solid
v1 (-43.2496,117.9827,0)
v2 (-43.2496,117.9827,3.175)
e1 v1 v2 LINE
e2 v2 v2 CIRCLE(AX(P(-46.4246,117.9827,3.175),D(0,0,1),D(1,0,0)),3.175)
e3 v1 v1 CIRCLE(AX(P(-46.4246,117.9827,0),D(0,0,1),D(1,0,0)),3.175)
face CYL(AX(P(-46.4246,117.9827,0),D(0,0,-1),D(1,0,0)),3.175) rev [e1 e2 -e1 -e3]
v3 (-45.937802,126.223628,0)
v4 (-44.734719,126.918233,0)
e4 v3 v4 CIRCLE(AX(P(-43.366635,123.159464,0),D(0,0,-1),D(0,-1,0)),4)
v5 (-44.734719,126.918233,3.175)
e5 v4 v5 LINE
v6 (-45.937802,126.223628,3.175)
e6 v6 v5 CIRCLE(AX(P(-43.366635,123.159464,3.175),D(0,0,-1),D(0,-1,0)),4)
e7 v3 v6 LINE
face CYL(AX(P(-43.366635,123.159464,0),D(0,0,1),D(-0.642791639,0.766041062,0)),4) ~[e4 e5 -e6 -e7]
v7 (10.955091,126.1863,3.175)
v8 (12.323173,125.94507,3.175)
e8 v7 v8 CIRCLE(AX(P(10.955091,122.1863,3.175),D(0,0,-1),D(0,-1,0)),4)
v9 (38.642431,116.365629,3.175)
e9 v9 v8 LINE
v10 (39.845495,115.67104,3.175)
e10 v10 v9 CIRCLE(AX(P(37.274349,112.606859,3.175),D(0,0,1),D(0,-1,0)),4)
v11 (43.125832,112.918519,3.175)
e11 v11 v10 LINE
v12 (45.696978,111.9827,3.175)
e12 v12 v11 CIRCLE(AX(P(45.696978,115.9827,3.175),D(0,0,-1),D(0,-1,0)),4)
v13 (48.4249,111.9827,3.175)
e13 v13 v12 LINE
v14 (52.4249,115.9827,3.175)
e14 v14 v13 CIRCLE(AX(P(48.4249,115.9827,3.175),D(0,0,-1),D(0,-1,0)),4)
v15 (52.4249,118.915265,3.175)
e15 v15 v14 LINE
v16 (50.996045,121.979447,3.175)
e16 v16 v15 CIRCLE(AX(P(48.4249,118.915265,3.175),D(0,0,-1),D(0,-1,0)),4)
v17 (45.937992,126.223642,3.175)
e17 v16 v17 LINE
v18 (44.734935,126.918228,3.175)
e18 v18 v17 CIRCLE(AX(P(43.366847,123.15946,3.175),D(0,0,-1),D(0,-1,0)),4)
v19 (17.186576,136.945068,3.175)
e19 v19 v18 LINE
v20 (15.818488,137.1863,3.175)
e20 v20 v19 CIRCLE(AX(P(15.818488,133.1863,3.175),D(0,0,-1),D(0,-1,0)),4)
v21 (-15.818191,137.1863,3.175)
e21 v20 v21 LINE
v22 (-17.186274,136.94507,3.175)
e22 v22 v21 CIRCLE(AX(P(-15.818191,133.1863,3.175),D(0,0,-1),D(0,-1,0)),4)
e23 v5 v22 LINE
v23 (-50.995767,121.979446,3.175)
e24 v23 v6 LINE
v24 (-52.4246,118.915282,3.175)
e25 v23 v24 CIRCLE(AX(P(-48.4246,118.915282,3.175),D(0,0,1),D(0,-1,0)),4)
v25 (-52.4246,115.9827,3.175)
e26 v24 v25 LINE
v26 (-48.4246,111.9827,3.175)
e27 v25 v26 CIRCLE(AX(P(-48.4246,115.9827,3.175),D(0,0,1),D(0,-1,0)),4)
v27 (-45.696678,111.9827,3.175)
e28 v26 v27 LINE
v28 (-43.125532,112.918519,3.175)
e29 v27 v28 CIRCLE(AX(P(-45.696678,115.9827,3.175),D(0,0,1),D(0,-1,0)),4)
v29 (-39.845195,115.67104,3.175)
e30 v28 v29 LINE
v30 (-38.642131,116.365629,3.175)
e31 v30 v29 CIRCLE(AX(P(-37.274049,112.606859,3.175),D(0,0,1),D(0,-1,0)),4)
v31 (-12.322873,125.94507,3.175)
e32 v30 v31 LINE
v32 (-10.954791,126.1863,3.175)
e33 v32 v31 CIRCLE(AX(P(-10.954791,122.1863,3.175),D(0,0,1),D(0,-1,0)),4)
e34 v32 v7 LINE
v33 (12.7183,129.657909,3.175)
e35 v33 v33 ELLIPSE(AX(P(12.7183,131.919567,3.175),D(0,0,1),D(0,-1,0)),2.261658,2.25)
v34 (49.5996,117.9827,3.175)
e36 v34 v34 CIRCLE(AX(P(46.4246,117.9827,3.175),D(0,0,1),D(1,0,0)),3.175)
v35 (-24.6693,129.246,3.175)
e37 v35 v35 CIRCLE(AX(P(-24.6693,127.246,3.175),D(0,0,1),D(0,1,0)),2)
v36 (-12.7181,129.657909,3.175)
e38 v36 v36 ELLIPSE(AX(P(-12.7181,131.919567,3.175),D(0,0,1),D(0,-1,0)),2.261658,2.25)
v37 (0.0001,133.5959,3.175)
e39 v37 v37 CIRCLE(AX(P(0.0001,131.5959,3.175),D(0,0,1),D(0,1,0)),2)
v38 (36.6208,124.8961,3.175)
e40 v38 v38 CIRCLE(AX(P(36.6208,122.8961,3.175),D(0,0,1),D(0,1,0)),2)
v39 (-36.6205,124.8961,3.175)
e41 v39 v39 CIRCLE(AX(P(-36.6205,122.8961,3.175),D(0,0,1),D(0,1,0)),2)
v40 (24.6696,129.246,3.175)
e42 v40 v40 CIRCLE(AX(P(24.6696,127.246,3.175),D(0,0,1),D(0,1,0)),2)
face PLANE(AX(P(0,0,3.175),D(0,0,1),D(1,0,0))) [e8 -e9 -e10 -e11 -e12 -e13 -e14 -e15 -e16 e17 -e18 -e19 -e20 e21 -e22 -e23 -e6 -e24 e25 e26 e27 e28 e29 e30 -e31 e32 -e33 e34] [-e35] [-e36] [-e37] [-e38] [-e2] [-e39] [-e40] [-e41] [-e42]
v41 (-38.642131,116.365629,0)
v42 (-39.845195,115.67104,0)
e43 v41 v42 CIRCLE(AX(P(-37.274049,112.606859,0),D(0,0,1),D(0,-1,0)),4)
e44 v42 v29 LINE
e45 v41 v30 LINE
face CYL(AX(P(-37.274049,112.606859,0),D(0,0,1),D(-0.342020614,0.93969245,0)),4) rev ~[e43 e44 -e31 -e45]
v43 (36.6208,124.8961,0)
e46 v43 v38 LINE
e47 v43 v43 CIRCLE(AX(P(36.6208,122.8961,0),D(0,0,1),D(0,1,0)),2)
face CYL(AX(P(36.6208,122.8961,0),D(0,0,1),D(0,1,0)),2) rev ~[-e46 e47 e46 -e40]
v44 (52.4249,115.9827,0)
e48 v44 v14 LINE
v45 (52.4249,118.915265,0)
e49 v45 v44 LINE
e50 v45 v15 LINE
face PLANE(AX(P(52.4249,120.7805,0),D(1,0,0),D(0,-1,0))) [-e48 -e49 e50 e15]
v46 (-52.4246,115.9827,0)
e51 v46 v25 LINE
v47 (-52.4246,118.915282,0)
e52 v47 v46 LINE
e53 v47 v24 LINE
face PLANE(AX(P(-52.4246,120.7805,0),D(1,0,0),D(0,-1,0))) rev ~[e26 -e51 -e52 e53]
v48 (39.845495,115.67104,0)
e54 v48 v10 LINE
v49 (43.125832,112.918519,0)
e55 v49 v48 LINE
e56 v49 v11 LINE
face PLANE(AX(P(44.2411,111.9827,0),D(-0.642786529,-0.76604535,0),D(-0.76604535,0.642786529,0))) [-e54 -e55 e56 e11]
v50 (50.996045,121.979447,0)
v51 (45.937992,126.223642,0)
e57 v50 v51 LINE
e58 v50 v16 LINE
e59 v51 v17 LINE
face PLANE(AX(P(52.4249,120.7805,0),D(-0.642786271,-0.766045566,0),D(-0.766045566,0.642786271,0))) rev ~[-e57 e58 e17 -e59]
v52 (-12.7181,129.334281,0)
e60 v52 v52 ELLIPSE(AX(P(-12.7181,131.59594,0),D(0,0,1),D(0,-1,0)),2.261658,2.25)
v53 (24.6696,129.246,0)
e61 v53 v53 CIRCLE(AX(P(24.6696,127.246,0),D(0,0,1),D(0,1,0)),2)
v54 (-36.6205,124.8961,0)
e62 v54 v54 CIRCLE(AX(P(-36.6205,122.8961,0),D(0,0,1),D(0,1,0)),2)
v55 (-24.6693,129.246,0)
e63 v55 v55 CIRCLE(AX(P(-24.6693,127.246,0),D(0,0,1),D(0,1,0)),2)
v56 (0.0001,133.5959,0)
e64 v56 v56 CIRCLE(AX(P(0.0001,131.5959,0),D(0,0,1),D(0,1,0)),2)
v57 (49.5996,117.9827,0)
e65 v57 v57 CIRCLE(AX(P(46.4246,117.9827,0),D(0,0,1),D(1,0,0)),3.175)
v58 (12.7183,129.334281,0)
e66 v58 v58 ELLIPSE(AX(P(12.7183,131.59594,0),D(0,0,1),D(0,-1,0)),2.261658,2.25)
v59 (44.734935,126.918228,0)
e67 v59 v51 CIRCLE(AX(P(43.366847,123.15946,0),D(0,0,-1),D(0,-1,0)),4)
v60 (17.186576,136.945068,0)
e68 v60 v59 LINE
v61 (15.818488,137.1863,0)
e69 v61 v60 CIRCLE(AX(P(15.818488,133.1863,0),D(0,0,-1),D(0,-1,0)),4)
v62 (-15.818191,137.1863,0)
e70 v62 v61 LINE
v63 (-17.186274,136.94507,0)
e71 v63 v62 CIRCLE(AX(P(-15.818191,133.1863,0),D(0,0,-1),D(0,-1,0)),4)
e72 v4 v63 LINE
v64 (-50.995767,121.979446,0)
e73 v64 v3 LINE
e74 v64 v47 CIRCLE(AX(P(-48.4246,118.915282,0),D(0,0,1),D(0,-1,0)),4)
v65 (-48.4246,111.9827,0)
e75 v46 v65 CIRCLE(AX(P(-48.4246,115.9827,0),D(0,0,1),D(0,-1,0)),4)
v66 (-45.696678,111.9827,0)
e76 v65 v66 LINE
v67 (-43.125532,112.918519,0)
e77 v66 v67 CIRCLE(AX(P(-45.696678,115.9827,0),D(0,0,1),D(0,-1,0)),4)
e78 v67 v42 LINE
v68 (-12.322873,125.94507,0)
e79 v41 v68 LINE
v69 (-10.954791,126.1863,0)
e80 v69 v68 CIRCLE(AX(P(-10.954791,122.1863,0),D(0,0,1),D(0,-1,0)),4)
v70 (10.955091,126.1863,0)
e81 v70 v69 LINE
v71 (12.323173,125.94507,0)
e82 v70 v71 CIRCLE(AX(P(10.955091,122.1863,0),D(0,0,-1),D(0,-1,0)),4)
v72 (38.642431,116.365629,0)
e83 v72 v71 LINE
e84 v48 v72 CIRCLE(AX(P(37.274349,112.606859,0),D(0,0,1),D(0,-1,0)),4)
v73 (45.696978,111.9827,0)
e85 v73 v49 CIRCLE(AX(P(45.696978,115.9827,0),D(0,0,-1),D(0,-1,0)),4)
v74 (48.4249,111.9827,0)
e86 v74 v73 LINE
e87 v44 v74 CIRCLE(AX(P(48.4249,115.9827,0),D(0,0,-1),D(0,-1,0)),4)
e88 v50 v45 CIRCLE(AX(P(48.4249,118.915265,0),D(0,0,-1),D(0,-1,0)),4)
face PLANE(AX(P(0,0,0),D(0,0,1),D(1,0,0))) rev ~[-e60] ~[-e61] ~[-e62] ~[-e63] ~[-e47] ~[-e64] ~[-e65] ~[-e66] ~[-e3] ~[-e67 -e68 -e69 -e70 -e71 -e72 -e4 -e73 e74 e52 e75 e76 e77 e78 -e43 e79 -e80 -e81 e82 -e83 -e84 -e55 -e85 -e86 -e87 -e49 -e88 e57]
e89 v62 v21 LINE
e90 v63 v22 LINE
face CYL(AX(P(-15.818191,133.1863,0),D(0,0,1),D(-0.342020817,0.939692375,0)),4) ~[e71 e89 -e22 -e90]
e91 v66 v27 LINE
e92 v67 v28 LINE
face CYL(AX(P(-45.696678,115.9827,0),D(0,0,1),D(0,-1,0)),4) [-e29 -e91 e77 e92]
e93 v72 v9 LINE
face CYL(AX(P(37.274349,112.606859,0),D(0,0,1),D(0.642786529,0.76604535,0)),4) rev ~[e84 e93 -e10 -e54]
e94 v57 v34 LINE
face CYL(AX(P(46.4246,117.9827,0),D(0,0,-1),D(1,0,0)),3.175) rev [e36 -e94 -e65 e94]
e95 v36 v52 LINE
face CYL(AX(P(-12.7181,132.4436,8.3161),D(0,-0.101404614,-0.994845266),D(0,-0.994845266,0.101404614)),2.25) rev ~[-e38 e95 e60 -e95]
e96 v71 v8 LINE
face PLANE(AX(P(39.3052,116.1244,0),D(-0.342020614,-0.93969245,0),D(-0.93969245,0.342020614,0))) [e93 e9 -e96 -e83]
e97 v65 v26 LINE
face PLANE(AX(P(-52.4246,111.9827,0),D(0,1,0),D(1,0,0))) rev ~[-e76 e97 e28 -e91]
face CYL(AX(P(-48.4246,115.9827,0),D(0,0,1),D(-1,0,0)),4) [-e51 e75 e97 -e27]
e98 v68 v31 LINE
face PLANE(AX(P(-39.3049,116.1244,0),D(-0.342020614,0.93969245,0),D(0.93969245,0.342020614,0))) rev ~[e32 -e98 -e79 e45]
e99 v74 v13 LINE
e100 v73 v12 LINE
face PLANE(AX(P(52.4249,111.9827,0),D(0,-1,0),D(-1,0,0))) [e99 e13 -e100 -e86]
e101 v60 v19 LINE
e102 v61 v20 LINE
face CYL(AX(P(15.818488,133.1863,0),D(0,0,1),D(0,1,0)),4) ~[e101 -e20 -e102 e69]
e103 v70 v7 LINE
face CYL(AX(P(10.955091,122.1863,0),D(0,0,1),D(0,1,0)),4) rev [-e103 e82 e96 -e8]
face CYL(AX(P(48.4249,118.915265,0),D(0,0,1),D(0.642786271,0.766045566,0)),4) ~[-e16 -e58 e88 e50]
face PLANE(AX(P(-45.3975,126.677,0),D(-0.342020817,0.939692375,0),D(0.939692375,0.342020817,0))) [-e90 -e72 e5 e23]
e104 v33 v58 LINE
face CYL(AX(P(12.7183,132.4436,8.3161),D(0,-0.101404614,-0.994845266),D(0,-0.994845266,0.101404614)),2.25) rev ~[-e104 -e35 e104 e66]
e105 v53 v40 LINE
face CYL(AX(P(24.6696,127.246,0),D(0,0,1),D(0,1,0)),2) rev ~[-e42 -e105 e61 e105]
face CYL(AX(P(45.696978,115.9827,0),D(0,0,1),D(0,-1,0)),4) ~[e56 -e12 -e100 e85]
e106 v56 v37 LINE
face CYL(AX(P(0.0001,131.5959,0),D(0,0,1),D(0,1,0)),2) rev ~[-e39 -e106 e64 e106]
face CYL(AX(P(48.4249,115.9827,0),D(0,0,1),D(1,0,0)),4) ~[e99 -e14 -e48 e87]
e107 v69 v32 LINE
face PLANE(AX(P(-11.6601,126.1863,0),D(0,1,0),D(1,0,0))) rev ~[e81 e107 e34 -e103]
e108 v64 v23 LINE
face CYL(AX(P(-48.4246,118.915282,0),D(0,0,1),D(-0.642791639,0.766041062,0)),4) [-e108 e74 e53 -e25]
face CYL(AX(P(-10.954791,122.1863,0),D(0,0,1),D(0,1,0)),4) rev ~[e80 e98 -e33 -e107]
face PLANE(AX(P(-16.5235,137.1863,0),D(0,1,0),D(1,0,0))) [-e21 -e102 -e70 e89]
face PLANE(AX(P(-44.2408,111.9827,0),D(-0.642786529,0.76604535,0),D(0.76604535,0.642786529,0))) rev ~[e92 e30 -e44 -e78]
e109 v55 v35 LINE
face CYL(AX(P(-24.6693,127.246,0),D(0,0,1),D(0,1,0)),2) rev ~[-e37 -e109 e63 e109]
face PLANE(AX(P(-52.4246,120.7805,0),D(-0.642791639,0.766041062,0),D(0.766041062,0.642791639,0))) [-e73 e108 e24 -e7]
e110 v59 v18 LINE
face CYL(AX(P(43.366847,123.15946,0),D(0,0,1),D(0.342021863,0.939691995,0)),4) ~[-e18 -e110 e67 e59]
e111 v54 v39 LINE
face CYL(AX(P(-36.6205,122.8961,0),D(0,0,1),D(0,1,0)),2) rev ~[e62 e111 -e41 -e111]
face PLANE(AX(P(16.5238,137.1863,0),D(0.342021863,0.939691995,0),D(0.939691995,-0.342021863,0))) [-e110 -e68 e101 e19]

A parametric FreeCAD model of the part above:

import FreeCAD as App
import Part
import Sketcher
from FreeCAD import Vector
Q = App.Units.Quantity


def edges_at(feature, points):
    """Names of the edges that pass closest to the given points."""
    edges = feature.Shape.Edges
    near = lambda p: min(range(len(edges)), key=lambda i: edges[i].distToShape(Part.Vertex(*p))[0])
    return sorted({f"Edge{near(p) + 1}" for p in points})

doc = App.newDocument("Part")
body = doc.addObject("PartDesign::Body", "Body")

# Sketch on XY plane
sketch1 = body.newObject("Sketcher::SketchObject", "Sketch")
sketch1.AttachmentSupport = (doc.getObject("XY_Plane"), [""])
sketch1.MapMode = "FlatFace"
sketch1.addGeometry([
    Part.LineSegment(Vector(-45.4, 126.7, 0), Vector(-52.4, 120.8, 0)),  # 0
    Part.LineSegment(Vector(-52.4, 120.8, 0), Vector(-52.4, 112, 0)),  # 1
    Part.LineSegment(Vector(-52.4, 112, 0), Vector(-44.2, 112, 0)),  # 2
    Part.LineSegment(Vector(-44.2, 112, 0), Vector(-39.3, 116.1, 0)),  # 3
    Part.LineSegment(Vector(-39.3, 116.1, 0), Vector(-11.7, 126.2, 0)),  # 4
    Part.LineSegment(Vector(-11.7, 126.2, 0), Vector(11.7, 126.2, 0)),  # 5
    Part.LineSegment(Vector(11.7, 126.2, 0), Vector(39.3, 116.1, 0)),  # 6
    Part.LineSegment(Vector(39.3, 116.1, 0), Vector(44.2, 112, 0)),  # 7
    Part.LineSegment(Vector(44.2, 112, 0), Vector(52.4, 112, 0)),  # 8
    Part.LineSegment(Vector(52.4, 112, 0), Vector(52.4, 120.8, 0)),  # 9
    Part.LineSegment(Vector(52.4, 120.8, 0), Vector(45.4, 126.7, 0)),  # 10
    Part.LineSegment(Vector(45.4, 126.7, 0), Vector(16.5, 137.2, 0)),  # 11
    Part.LineSegment(Vector(16.5, 137.2, 0), Vector(-16.5, 137.2, 0)),  # 12
    Part.LineSegment(Vector(-16.5, 137.2, 0), Vector(-45.4, 126.7, 0)),  # 13
    Part.Circle(Vector(-46.4, 118, 0), Vector(0, 0, 1), 3.2),  # 14
    Part.Circle(Vector(46.4, 118, 0), Vector(0, 0, 1), 3.2),  # 15
], False)
sketch1.addConstraint([
    Sketcher.Constraint("Coincident", 0, 2, 1, 1),
    Sketcher.Constraint("Coincident", 1, 2, 2, 1),
    Sketcher.Constraint("Coincident", 2, 2, 3, 1),
    Sketcher.Constraint("Coincident", 3, 2, 4, 1),
    Sketcher.Constraint("Coincident", 4, 2, 5, 1),
    Sketcher.Constraint("Coincident", 5, 2, 6, 1),
    Sketcher.Constraint("Coincident", 6, 2, 7, 1),
    Sketcher.Constraint("Coincident", 7, 2, 8, 1),
    Sketcher.Constraint("Coincident", 8, 2, 9, 1),
    Sketcher.Constraint("Coincident", 9, 2, 10, 1),
    Sketcher.Constraint("Coincident", 10, 2, 11, 1),
    Sketcher.Constraint("Coincident", 11, 2, 12, 1),
    Sketcher.Constraint("Coincident", 12, 2, 13, 1),
    Sketcher.Constraint("Coincident", 13, 2, 0, 1),
    Sketcher.Constraint("Vertical", 1),
    Sketcher.Constraint("Horizontal", 2),
    Sketcher.Constraint("Horizontal", 5),
    Sketcher.Constraint("Horizontal", 8),
    Sketcher.Constraint("Vertical", 9),
    Sketcher.Constraint("Horizontal", 12),
    Sketcher.Constraint("Equal", 14, 15),
    Sketcher.Constraint("Symmetric", 14, 3, 15, 3, -2),
    Sketcher.Constraint("Symmetric", 3, 2, 6, 2, -2),
    Sketcher.Constraint("Symmetric", 2, 2, 7, 2, -2),
    Sketcher.Constraint("Symmetric", 0, 2, 9, 2, -2),
    Sketcher.Constraint("Symmetric", 10, 2, 13, 2, -2),
    Sketcher.Constraint("Parallel", 0, 3),
    Sketcher.Constraint("Parallel", 6, 11),
    Sketcher.Constraint("Parallel", 4, 13),
    Sketcher.Constraint("Equal", 4, 6),
    Sketcher.Constraint("Angle", 11, Q("160 deg")),
    Sketcher.Constraint("DistanceX", 0, 2, 14, 3, 6.0),
    Sketcher.Constraint("DistanceY", 1, 2, 14, 3, 6.0),
    Sketcher.Constraint("Diameter", 14, 6.35),
    Sketcher.Constraint("Angle", 0, Q("-139.9997 deg")),
    Sketcher.Constraint("DistanceY", 5, 2, 11, 2, 11.0),
    Sketcher.Constraint("DistanceX", 4, 2, -1, 1, 11.66),
    Sketcher.Constraint("DistanceX", 3, 2, 6, 2, 78.61),
    Sketcher.Constraint("Distance", 11, 30.727),
    Sketcher.Constraint("DistanceX", 2, 1, 2, 2, 8.1838),
    Sketcher.Constraint("DistanceX", 12, 2, 12, 1, 33.0473),
    Sketcher.Constraint("DistanceX", -1, 1, 7, 2, 44.241),
    Sketcher.Constraint("DistanceY", -1, 1, 10, 2, 126.677),
])
pad1 = body.newObject("PartDesign::Pad", "Pad")
pad1.Profile = sketch1
pad1.Length = 3.175
doc.recompute()

fillet = body.newObject("PartDesign::Fillet", "Fillet")
fillet.Base = (pad1, edges_at(pad1, [
    (-45.398, 126.677, 1.587),
    (-16.523, 137.186, 1.587),
    (-52.425, 120.781, 1.587),
    (-52.425, 111.983, 1.587),
    (16.524, 137.186, 1.587),
    (45.398, 126.677, 1.587),
    (52.425, 120.781, 1.587),
    (52.425, 111.983, 1.587),
    (44.241, 111.983, 1.587),
    (39.305, 116.124, 1.587),
    (11.66, 126.186, 1.587),
    (-11.66, 126.186, 1.587),
    (-39.305, 116.124, 1.587),
    (-44.241, 111.983, 1.587),
]))
fillet.Radius = 4

# Sketch on an angled plane
sketch2 = body.newObject("Sketcher::SketchObject", "Sketch001")
sketch2.Placement = App.Placement(Vector(0, 2.200848, 21.591748), App.Rotation(Vector(0, -0.994845266, 0.101404614), Vector(0.999999999, 0, 0), Vector(0, 0.101404614, 0.994845266), "ZXY"))
sketch2.addGeometry([
    Part.Circle(Vector(-130.9, -12.7, 0), Vector(0, 0, 1), 2.2),
    Part.Circle(Vector(-130.9, 12.7, 0), Vector(0, 0, 1), 2.2),
], False)
sketch2.addConstraint([
    Sketcher.Constraint("Equal", 0, 1),
    Sketcher.Constraint("Symmetric", 0, 3, 1, 3, -1),
    Sketcher.Constraint("Diameter", 0, 4.5),
    Sketcher.Constraint("DistanceY", 0, 3, -1, 1, 12.718),
    Sketcher.Constraint("DistanceX", 0, 3, -1, 1, 130.9176),
])
doc.recompute()
hole = body.newObject("PartDesign::Hole", "Hole")
hole.Profile = sketch2
hole.ThreadType = "None"
hole.Diameter = 4.5
hole.DepthType = "ThroughAll"

# Sketch on XY plane
sketch3 = body.newObject("Sketcher::SketchObject", "Sketch002")
sketch3.AttachmentSupport = (doc.getObject("XY_Plane"), [""])
sketch3.MapMode = "FlatFace"
sketch3.addGeometry([
    Part.Circle(Vector(36.6, 122.9, 0), Vector(0, 0, 1), 2),  # 0
    Part.Circle(Vector(24.7, 127.2, 0), Vector(0, 0, 1), 2),  # 1
    Part.Circle(Vector(0, 131.6, 0), Vector(0, 0, 1), 2),  # 2
    Part.Circle(Vector(-24.7, 127.2, 0), Vector(0, 0, 1), 2),  # 3
    Part.Circle(Vector(-36.6, 122.9, 0), Vector(0, 0, 1), 2),  # 4
], False)
sketch3.addConstraint([
    Sketcher.Constraint("Equal", 0, 1),
    Sketcher.Constraint("Equal", 1, 2),
    Sketcher.Constraint("Equal", 2, 3),
    Sketcher.Constraint("Equal", 3, 4),
    Sketcher.Constraint("Symmetric", 1, 3, 3, 3, -2),
    Sketcher.Constraint("Symmetric", 0, 3, 4, 3, -2),
    Sketcher.Constraint("PointOnObject", 2, 3, -2),
    Sketcher.Constraint("Diameter", 0, 4.0),
    Sketcher.Constraint("DistanceY", 0, 3, 1, 3, 4.35),
    Sketcher.Constraint("DistanceY", 1, 3, 2, 3, 4.35),
    Sketcher.Constraint("DistanceX", 3, 3, 0, 3, 61.29),
    Sketcher.Constraint("DistanceY", -1, 1, 0, 3, 122.896),
    Sketcher.Constraint("DistanceX", 3, 3, 1, 3, 49.339),
])
doc.recompute()
hole2 = body.newObject("PartDesign::Hole", "Hole001")
hole2.Profile = sketch3
hole2.ThreadType = "None"
hole2.Diameter = 4
hole2.DepthType = "ThroughAll"
hole2.Reversed = True

doc.recompute()
